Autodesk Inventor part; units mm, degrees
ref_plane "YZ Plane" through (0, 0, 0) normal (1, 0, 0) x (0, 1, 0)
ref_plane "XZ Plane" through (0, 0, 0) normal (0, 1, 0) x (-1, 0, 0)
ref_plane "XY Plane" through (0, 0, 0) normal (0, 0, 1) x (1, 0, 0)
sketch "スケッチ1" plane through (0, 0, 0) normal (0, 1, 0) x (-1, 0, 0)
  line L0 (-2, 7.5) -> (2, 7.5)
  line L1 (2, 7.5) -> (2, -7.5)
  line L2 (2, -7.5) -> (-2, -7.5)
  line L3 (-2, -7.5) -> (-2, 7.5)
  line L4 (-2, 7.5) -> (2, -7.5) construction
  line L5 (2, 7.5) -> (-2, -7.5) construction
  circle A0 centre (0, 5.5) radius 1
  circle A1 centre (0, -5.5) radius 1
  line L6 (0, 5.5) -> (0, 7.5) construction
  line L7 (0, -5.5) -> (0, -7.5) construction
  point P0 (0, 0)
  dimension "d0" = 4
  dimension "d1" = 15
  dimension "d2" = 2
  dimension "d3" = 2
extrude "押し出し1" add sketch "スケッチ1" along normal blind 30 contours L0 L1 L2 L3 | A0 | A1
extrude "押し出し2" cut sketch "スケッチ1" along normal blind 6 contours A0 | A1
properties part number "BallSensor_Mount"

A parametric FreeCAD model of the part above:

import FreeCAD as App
import Part
import Sketcher

V = App.Vector
Q = App.Units.Quantity

doc = App.newDocument("Part")
body = doc.addObject("PartDesign::Body", "Body")

sketch1 = doc.addObject("Sketcher::SketchObject", "Sketch")
body.addObject(sketch1)
sketch1.AttachmentSupport = (doc.XZ_Plane, [""])
sketch1.MapMode = "FlatFace"
sketch1.addGeometry([
    Part.LineSegment(V(-2, 7.5, 0), V(2, 7.5, 0)),
    Part.LineSegment(V(2, 7.5, 0), V(2, -7.5, 0)),
    Part.LineSegment(V(2, -7.5, 0), V(-2, -7.5, 0)),
    Part.LineSegment(V(-2, -7.5, 0), V(-2, 7.5, 0)),
], False)
sketch1.addConstraint([
    Sketcher.Constraint("Coincident", 0, 2, 1, 1),
    Sketcher.Constraint("Coincident", 1, 2, 2, 1),
    Sketcher.Constraint("Coincident", 2, 2, 3, 1),
    Sketcher.Constraint("Coincident", 3, 2, 0, 1),
    Sketcher.Constraint("Horizontal", 0),
    Sketcher.Constraint("Vertical", 1),
    Sketcher.Constraint("Horizontal", 2),
    Sketcher.Constraint("Vertical", 3),
    Sketcher.Constraint("Symmetric", 0, 2, 2, 2, -1, 1),
    Sketcher.Constraint("DistanceX", 0, 1, 0, 2, Q("4 mm")),
    Sketcher.Constraint("DistanceY", 1, 2, 1, 1, Q("15 mm")),
])
pad1 = doc.addObject("PartDesign::Pad", "Pad")
body.addObject(pad1)
pad1.Profile = sketch1
pad1.Length = 30
pad1.Reversed = True

sketch2 = doc.addObject("Sketcher::SketchObject", "Sketch001")
body.addObject(sketch2)
sketch2.AttachmentSupport = (doc.XZ_Plane, [""])
sketch2.MapMode = "FlatFace"
sketch2.addGeometry([
    Part.Circle(V(0, 5.5, 0), V(0, 0, 1), 1),
    Part.Circle(V(0, -5.5, 0), V(0, 0, 1), 1),
], False)
sketch2.addConstraint([
    Sketcher.Constraint("Equal", 0, 1),
    Sketcher.Constraint("Symmetric", 0, 3, 1, 3, -1, 1),
    Sketcher.Constraint("PointOnObject", 0, 3, -2),
    Sketcher.Constraint("Diameter", 0, Q("2 mm")),
    Sketcher.Constraint("DistanceY", 1, 3, 0, 3, Q("11 mm")),
])
pocket1 = doc.addObject("PartDesign::Pocket", "Pocket")
body.addObject(pocket1)
pocket1.Profile = sketch2
pocket1.Length = 6

doc.recompute()
